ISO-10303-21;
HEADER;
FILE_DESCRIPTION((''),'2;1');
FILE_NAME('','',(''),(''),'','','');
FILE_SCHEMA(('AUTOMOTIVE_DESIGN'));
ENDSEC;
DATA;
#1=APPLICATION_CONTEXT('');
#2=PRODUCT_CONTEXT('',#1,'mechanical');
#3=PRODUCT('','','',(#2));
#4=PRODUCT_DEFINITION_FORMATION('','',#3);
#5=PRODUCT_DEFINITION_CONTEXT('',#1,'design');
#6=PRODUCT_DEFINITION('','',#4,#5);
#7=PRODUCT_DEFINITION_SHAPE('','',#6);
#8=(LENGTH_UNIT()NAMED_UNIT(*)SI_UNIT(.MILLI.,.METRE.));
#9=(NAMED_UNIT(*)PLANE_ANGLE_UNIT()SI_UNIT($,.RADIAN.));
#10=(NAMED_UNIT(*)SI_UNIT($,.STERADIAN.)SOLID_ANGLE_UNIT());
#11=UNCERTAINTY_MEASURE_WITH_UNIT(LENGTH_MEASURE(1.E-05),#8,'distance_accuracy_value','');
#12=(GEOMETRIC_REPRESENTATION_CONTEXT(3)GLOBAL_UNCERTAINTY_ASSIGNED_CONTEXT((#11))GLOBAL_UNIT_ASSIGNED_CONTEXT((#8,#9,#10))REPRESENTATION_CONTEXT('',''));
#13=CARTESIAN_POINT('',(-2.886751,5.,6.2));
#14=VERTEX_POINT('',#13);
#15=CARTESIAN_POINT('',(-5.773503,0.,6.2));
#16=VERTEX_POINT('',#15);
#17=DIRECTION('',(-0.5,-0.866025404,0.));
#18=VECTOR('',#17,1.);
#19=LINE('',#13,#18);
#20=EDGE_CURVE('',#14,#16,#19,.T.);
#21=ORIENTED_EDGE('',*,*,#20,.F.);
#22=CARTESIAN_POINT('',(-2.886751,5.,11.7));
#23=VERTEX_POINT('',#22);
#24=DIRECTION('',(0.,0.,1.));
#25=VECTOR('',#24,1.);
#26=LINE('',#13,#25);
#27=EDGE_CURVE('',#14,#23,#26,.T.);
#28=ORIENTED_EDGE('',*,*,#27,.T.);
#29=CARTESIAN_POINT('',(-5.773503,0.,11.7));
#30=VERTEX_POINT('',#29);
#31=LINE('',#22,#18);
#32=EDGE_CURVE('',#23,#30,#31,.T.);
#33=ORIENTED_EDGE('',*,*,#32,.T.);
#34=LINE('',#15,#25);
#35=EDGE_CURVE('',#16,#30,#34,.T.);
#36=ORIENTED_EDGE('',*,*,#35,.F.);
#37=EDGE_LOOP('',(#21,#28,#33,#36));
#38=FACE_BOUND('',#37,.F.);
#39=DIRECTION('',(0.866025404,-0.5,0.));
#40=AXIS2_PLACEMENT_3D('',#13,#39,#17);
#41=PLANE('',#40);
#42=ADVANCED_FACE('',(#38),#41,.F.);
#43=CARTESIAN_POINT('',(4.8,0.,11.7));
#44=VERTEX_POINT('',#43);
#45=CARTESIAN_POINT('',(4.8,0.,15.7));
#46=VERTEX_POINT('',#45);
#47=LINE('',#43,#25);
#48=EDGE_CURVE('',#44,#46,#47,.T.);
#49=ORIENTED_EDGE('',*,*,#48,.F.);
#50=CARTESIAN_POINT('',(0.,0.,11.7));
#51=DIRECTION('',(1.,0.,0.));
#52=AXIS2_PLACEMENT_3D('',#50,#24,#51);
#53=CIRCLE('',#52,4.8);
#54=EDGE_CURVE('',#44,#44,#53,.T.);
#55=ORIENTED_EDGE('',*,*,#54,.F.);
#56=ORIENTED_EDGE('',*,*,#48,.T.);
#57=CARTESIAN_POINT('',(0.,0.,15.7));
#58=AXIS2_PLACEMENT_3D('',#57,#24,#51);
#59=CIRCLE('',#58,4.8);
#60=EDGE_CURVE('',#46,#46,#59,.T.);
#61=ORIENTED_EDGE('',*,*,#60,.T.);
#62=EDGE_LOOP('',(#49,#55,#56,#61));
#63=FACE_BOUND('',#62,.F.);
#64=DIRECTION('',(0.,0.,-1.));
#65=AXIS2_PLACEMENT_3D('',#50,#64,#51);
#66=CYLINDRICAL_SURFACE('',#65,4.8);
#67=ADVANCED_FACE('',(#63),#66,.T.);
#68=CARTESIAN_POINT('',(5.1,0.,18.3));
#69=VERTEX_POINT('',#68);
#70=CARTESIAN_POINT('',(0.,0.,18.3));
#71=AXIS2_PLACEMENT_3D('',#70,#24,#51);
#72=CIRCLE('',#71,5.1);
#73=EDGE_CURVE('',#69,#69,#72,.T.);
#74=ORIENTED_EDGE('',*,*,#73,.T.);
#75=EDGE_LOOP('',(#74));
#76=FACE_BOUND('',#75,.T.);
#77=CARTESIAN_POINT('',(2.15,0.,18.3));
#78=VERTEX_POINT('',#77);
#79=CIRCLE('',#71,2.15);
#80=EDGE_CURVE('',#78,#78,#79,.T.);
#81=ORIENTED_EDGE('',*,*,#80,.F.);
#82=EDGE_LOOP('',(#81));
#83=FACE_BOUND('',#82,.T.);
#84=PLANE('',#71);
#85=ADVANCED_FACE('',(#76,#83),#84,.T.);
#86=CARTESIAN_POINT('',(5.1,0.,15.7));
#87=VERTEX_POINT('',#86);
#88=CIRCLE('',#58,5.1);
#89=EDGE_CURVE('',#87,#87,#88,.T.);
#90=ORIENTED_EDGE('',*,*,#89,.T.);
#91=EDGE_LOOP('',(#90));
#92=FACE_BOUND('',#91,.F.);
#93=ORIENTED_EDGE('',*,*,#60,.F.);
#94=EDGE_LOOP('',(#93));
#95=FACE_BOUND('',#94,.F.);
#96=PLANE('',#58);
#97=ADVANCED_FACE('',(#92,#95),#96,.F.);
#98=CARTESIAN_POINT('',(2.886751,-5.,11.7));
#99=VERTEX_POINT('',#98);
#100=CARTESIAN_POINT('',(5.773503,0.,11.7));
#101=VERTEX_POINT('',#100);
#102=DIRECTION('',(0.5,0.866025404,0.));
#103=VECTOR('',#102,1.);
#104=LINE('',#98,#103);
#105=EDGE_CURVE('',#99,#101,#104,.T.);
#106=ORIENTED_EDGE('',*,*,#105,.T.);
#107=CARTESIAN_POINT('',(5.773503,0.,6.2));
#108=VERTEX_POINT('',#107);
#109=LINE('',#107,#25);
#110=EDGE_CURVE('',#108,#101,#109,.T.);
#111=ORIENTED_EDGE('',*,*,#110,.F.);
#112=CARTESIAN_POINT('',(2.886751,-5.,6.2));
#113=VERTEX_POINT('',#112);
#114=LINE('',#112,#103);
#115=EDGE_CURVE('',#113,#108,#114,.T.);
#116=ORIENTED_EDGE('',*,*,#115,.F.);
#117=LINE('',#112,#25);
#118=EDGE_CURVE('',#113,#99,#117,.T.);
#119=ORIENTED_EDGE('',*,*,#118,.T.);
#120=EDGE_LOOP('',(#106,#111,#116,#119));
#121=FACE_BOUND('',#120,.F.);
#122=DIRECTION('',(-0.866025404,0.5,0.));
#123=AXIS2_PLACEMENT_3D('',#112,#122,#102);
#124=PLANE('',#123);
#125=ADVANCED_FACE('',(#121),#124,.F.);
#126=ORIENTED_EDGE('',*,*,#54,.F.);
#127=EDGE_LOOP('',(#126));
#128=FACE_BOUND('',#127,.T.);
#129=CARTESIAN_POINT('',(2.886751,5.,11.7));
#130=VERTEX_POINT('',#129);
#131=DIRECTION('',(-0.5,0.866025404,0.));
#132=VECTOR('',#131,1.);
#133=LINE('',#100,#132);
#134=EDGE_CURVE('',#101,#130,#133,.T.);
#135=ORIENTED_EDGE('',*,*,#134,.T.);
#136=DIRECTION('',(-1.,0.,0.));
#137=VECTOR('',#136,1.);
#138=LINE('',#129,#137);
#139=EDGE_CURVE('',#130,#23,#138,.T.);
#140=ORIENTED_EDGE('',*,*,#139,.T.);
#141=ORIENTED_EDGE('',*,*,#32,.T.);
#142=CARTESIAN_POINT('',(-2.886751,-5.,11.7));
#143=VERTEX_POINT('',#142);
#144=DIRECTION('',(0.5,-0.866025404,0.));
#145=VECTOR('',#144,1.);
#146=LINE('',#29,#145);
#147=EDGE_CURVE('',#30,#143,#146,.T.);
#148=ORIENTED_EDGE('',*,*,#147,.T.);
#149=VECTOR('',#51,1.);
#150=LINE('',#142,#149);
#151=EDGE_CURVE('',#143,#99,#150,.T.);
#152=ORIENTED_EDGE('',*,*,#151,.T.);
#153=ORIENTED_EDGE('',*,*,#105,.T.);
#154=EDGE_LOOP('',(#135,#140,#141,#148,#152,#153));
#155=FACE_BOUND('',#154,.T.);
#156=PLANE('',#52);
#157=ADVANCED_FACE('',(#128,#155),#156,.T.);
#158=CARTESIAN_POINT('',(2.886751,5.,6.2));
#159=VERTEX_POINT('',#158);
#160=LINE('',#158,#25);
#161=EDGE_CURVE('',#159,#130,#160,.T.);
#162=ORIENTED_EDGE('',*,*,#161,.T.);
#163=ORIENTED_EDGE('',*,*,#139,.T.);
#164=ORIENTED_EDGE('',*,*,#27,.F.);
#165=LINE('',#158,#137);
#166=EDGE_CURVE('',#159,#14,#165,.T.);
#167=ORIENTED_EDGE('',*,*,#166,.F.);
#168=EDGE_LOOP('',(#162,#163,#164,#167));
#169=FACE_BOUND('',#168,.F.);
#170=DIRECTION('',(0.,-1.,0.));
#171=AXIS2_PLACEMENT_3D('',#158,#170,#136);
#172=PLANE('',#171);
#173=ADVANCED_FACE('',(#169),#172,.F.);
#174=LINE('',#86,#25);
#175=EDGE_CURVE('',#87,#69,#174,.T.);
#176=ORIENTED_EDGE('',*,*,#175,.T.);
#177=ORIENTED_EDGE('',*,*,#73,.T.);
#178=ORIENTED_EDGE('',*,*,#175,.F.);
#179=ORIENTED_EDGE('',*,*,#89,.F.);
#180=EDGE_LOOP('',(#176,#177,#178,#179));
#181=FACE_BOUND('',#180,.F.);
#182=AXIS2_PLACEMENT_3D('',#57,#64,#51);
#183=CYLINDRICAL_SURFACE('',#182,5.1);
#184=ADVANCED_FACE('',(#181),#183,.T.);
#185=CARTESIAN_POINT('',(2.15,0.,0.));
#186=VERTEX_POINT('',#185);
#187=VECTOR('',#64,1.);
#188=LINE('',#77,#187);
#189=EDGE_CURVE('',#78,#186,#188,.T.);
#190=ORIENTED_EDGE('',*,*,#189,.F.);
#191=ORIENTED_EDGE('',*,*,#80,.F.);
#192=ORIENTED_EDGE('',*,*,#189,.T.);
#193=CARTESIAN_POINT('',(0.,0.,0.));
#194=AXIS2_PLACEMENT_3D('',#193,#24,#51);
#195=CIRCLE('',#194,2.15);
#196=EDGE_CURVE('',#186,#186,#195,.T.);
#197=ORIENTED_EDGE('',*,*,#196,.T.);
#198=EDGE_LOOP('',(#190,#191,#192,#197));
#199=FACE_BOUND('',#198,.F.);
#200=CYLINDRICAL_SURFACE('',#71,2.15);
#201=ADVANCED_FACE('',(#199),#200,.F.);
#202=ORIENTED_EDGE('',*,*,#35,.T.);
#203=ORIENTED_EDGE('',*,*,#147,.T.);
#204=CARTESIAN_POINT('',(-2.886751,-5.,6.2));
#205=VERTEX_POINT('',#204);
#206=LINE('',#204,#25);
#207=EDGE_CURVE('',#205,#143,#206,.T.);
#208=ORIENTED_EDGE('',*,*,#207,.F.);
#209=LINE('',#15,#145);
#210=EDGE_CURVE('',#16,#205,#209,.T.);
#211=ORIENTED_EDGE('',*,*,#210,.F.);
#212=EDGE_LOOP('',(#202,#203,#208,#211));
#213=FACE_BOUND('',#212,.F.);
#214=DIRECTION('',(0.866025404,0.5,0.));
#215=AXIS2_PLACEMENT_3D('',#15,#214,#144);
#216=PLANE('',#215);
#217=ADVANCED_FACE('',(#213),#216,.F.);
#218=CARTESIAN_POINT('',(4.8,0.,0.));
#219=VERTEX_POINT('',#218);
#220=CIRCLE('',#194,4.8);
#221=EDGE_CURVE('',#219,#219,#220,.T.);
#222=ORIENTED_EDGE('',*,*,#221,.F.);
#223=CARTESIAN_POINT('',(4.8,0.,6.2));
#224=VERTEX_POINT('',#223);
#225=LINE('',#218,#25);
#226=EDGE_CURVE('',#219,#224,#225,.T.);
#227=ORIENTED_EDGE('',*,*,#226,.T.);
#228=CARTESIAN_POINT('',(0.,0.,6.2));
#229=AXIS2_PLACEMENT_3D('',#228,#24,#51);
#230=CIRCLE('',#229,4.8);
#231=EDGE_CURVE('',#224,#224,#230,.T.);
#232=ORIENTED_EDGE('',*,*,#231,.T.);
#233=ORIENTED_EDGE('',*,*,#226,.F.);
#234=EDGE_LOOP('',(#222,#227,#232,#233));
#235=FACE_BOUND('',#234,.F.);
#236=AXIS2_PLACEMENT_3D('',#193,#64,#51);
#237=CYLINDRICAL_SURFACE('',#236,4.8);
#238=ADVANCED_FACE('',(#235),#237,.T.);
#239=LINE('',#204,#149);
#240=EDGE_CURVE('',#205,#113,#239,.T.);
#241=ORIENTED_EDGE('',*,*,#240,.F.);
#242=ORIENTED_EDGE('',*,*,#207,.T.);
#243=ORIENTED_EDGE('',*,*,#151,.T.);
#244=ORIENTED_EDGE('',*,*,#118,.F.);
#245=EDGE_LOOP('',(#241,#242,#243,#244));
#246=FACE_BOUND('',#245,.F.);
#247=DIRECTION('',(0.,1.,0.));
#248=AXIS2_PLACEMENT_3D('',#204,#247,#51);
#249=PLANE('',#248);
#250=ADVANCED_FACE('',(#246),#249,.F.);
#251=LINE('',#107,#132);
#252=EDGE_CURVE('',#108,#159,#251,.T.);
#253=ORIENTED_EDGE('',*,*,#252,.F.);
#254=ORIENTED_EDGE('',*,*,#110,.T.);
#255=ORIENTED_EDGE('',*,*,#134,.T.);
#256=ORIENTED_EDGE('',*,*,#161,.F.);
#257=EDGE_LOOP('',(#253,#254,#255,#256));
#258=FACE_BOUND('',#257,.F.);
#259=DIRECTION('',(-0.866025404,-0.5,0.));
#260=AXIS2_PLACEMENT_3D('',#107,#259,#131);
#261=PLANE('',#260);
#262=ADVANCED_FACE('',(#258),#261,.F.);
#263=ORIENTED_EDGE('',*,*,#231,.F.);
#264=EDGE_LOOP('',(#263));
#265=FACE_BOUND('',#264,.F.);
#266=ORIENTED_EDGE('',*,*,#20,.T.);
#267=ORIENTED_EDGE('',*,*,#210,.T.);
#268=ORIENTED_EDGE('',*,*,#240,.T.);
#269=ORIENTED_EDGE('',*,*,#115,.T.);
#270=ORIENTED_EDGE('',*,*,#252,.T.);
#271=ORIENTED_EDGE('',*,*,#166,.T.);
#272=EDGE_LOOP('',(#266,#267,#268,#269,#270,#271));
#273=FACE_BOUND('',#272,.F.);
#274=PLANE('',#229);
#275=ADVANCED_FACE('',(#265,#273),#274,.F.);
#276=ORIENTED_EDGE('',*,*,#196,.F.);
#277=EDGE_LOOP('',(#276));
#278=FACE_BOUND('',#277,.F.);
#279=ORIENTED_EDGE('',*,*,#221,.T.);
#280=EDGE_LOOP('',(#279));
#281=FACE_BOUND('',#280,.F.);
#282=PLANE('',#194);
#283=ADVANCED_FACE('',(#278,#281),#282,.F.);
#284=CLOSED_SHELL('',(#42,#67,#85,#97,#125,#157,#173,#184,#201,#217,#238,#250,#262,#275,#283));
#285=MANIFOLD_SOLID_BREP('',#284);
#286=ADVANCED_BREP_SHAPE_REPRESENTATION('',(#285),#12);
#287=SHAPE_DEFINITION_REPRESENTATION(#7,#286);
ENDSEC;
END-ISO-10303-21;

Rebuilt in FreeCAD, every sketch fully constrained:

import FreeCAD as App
import Part
import Sketcher

V = App.Vector
Q = App.Units.Quantity


def add_polygon(sketch, points):
    """Adds a closed chain of lines whose ends are joined by coincident constraints."""
    first, n = sketch.GeometryCount, len(points)
    for a, b in zip(points, points[1:] + points[:1]):
        sketch.addGeometry(Part.LineSegment(App.Vector(*a, 0), App.Vector(*b, 0)), False)
    for i in range(n):
        sketch.addConstraint(Sketcher.Constraint("Coincident", first + i, 2, first + (i + 1) % n, 1))

doc = App.newDocument("Part")
body = doc.addObject("PartDesign::Body", "Body")

sketch1 = body.newObject("Sketcher::SketchObject", "Sketch")
sketch1.AttachmentSupport = (doc.getObject("XY_Plane"), [""])
sketch1.MapMode = "FlatFace"
sketch1.addGeometry(Part.Circle(V(0, 0, 0), V(0, 0, 1), 4.8), False)
sketch1.addConstraint(Sketcher.Constraint("Coincident", 0, 3, -1, 1))
sketch1.addConstraint(Sketcher.Constraint("Diameter", 0, Q("9.6 mm")))
pad1 = body.newObject("PartDesign::Pad", "Pad")
pad1.Profile = sketch1
pad1.Length = 6.2

sketch2 = body.newObject("Sketcher::SketchObject", "Sketch001")
sketch2.AttachmentSupport = (doc.getObject("XY_Plane"), [""])
sketch2.MapMode = "FlatFace"
sketch2.AttachmentOffset = App.Placement(V(0, 0, 6.2), App.Rotation())
add_polygon(sketch2, [(2.886751, -5), (5.773503, 0), (2.886751, 5), (-2.886751, 5), (-5.773503, 0), (-2.886751, -5)])
sketch2.addConstraint(Sketcher.Constraint("Horizontal", 2))
sketch2.addConstraint(Sketcher.Constraint("Horizontal", 5))
sketch2.addConstraint(Sketcher.Constraint("Symmetric", 0, 2, 3, 2, -1, 1))
sketch2.addConstraint(Sketcher.Constraint("Symmetric", 1, 2, 4, 2, -1, 1))
sketch2.addConstraint(Sketcher.Constraint("PointOnObject", 0, 2, -1))
sketch2.addConstraint(Sketcher.Constraint("Parallel", 0, 3))
sketch2.addConstraint(Sketcher.Constraint("Vertical", 2, 2, 4, 2))
sketch2.addConstraint(Sketcher.Constraint("Angle", 0, Q("60 deg")))
sketch2.addConstraint(Sketcher.Constraint("DistanceY", -1, 1, 1, 2, Q("5 mm")))
sketch2.addConstraint(Sketcher.Constraint("DistanceX", 2, 2, 2, 1, Q("5.773503 mm")))
pad2 = body.newObject("PartDesign::Pad", "Pad001")
pad2.Profile = sketch2
pad2.Length = 5.5

sketch3 = body.newObject("Sketcher::SketchObject", "Sketch002")
sketch3.AttachmentSupport = (doc.getObject("XY_Plane"), [""])
sketch3.MapMode = "FlatFace"
sketch3.AttachmentOffset = App.Placement(V(0, 0, 11.7), App.Rotation())
sketch3.addGeometry(Part.Circle(V(0, 0, 0), V(0, 0, 1), 4.8), False)
sketch3.addConstraint(Sketcher.Constraint("Coincident", 0, 3, -1, 1))
sketch3.addConstraint(Sketcher.Constraint("Diameter", 0, Q("9.6 mm")))
pad3 = body.newObject("PartDesign::Pad", "Pad002")
pad3.Profile = sketch3
pad3.Length = 4

sketch4 = body.newObject("Sketcher::SketchObject", "Sketch003")
sketch4.AttachmentSupport = (doc.getObject("XY_Plane"), [""])
sketch4.MapMode = "FlatFace"
sketch4.AttachmentOffset = App.Placement(V(0, 0, 15.7), App.Rotation())
sketch4.addGeometry(Part.Circle(V(0, 0, 0), V(0, 0, 1), 5.1), False)
sketch4.addConstraint(Sketcher.Constraint("Coincident", 0, 3, -1, 1))
sketch4.addConstraint(Sketcher.Constraint("Diameter", 0, Q("10.2 mm")))
pad4 = body.newObject("PartDesign::Pad", "Pad003")
pad4.Profile = sketch4
pad4.Length = 2.6

sketch5 = body.newObject("Sketcher::SketchObject", "Sketch004")
sketch5.AttachmentSupport = (doc.getObject("XY_Plane"), [""])
sketch5.MapMode = "FlatFace"
sketch5.AttachmentOffset = App.Placement(V(0, 0, 18.3), App.Rotation())
sketch5.addGeometry(Part.Circle(V(0, 0, 0), V(0, 0, 1), 2.15), False)
sketch5.addConstraint(Sketcher.Constraint("Coincident", 0, 3, -1, 1))
sketch5.addConstraint(Sketcher.Constraint("Diameter", 0, Q("4.3 mm")))
pocket1 = body.newObject("PartDesign::Pocket", "Pocket")
pocket1.Profile = sketch5
pocket1.Type = "ThroughAll"

doc.recompute()
